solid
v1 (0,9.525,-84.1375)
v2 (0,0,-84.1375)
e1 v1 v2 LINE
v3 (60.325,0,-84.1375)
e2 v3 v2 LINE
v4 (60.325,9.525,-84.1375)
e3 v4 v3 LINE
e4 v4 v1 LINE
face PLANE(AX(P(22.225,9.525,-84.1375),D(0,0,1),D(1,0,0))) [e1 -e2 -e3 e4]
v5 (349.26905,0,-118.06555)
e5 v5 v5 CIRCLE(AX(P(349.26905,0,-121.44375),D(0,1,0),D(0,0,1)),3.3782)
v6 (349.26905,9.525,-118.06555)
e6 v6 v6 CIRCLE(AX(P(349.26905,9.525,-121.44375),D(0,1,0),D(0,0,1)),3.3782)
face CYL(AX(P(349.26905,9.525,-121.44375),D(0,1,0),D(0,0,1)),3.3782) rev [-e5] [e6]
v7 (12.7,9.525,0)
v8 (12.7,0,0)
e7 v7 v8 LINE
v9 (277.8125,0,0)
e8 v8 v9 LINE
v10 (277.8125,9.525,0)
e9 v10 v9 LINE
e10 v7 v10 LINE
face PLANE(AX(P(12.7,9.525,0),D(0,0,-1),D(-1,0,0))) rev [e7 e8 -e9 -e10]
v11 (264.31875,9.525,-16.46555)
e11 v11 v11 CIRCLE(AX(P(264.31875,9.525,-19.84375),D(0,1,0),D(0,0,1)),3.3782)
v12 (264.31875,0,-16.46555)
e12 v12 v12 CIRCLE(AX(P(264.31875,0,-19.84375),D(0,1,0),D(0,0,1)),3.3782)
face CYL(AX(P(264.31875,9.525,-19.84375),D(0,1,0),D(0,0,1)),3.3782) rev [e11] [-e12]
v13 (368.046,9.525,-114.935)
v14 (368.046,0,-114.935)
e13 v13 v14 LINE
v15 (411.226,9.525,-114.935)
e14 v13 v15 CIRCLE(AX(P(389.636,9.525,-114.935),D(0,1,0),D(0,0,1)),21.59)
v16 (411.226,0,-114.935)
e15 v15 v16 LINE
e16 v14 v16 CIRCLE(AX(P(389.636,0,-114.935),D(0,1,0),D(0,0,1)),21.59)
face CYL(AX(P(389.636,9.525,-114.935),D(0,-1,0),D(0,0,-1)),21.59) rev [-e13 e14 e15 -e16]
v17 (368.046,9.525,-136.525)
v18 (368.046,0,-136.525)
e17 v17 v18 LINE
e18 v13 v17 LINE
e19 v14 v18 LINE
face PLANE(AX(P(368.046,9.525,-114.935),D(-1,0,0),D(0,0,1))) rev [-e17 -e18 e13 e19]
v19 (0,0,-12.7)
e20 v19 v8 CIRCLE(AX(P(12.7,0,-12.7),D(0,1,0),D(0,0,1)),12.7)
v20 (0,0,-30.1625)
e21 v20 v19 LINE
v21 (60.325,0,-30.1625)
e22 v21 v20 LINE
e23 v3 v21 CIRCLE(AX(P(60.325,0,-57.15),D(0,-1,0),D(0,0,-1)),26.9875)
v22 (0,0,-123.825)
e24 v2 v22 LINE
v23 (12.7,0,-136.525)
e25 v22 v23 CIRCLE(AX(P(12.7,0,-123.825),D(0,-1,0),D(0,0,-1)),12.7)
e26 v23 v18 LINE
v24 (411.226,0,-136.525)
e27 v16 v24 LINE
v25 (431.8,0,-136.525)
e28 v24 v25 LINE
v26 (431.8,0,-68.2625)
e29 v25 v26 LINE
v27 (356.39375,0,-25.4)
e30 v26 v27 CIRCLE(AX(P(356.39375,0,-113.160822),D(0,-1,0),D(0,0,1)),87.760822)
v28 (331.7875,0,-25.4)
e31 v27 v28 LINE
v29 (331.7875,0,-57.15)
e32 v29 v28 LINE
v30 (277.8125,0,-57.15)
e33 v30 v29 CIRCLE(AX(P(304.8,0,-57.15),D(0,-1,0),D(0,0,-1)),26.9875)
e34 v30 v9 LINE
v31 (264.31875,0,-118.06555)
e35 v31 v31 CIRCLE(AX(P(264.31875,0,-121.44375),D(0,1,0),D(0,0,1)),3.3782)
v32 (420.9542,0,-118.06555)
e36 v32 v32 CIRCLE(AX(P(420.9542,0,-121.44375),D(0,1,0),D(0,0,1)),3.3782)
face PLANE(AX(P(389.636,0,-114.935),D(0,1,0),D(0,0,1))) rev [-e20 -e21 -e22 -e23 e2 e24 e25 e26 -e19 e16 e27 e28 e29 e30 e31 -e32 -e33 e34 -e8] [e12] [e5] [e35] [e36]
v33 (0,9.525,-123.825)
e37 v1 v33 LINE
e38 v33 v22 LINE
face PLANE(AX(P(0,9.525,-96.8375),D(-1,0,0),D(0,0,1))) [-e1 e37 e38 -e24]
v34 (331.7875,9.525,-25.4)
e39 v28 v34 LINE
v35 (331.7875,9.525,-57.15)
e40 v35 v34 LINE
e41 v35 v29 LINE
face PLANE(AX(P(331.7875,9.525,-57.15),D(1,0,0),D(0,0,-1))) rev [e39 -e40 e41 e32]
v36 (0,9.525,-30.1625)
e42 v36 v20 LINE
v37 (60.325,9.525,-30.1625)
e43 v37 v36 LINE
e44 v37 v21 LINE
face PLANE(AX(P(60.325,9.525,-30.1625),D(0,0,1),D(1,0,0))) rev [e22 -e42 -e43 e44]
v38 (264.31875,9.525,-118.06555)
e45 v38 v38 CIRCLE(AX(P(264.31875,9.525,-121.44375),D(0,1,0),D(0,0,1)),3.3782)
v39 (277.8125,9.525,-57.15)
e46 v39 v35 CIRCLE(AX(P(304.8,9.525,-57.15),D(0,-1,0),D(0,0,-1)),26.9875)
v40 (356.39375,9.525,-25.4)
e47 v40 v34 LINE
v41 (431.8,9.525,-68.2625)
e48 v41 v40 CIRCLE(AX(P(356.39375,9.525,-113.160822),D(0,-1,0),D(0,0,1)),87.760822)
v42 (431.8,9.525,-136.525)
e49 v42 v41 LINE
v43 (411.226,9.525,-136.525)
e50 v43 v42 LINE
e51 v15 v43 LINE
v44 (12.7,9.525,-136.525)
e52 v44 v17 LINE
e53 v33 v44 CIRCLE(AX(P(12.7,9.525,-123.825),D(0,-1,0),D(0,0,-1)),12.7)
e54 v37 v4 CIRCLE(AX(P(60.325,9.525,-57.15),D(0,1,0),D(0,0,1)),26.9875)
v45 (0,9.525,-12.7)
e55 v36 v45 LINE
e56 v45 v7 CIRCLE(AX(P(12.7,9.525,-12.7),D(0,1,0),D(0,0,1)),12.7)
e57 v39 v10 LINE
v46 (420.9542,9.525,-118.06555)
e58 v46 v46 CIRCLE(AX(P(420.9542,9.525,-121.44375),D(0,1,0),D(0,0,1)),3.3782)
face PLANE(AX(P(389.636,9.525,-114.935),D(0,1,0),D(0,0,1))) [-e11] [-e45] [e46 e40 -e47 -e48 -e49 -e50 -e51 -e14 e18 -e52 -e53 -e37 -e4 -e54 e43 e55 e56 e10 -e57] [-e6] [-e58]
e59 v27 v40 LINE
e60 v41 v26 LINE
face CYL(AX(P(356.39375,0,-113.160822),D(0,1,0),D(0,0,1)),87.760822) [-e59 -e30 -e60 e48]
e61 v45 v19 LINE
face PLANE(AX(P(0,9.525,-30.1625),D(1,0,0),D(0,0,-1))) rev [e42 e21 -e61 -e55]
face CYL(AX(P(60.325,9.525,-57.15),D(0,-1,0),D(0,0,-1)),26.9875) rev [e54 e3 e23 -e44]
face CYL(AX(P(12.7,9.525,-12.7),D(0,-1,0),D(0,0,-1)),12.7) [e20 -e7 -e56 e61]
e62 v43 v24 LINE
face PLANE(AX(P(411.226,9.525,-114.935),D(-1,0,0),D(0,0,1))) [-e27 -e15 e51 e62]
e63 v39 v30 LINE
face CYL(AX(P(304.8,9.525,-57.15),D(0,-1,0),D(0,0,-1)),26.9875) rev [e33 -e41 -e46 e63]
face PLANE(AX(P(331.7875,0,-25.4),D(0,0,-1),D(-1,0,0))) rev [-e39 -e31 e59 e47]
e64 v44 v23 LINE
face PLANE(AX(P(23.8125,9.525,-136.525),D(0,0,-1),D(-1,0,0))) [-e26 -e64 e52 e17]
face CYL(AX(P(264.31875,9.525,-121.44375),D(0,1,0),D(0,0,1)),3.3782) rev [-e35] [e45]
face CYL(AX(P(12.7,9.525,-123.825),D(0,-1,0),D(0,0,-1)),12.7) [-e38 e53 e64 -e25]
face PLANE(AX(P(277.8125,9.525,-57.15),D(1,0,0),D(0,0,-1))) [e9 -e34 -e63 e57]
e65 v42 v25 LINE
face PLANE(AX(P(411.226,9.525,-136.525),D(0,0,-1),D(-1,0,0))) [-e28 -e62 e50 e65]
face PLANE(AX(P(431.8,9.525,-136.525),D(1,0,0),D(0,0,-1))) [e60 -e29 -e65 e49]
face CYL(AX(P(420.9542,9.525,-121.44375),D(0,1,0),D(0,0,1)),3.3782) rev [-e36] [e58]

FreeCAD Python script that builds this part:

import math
import FreeCAD as App
import Part
import Sketcher
from FreeCAD import Vector
Q = App.Units.Quantity

doc = App.newDocument("Part")
params = doc.addObject("Spreadsheet::Sheet", "Params")
for row, (alias, value) in enumerate([
    ("sketch1_radius", "0.5 in"),
    ("sketch1_width", "1 in"),
    ("sketch1_radius2", "0.85 in"),
    ("sketch1_radius3", "1.0625 in"),
    ("sketch1_width2", "0.81 in"),
    ("pad1_length", "0.375 in"),
    ("sketch2_width", "1 in"),
    ("sketch2_width2", "0.96875 in"),
    ("sketch3_diameter", "0.266 in"),
    ("hole_diameter", "0.266 in"),
], start=1):
    params.set(f"A{row}", alias)
    params.set(f"B{row}", "=" + value)
    params.setAlias(f"B{row}", alias)

body = doc.addObject("PartDesign::Body", "Body")

sketch1 = body.newObject("Sketcher::SketchObject", "Sketch")
sketch1.AttachmentSupport = (doc.getObject("XZ_Plane"), [""])
sketch1.MapMode = "FlatFace"
sketch1.addGeometry([
    Part.LineSegment(Vector(277.8125, 0, 0), Vector(277.8125, -57.15, 0)),
    Part.ArcOfCircle(Part.Circle(Vector(304.8, -57.15, 0), Vector(0, 0, 1), 26.9875), math.radians(180), math.radians(360)),
    Part.LineSegment(Vector(331.7875, -57.15, 0), Vector(331.7875, 0, 0)),
    Part.LineSegment(Vector(331.7875, 0, 0), Vector(357.1875, 0, 0)),
    Part.ArcOfCircle(Part.Circle(Vector(357.1875, -74.907849, 0), Vector(0, 0, 1), 74.907849), math.radians(5.089609), math.radians(90)),
    Part.LineSegment(Vector(431.8, -68.2625, 0), Vector(431.8, -136.525, 0)),
    Part.LineSegment(Vector(431.8, -136.525, 0), Vector(411.226, -136.525, 0)),
    Part.LineSegment(Vector(411.226, -136.525, 0), Vector(411.226, -114.935, 0)),
    Part.ArcOfCircle(Part.Circle(Vector(389.636, -114.935, 0), Vector(0, 0, 1), 21.59), math.radians(0), math.radians(180)),
    Part.LineSegment(Vector(368.046, -114.935, 0), Vector(368.046, -136.525, 0)),
    Part.LineSegment(Vector(368.046, -136.525, 0), Vector(12.7, -136.525, 0)),
    Part.ArcOfCircle(Part.Circle(Vector(12.7, -123.825, 0), Vector(0, 0, 1), 12.7), math.radians(180), math.radians(270)),
    Part.LineSegment(Vector(0, -123.825, 0), Vector(0, -84.1375, 0)),
    Part.LineSegment(Vector(0, -84.1375, 0), Vector(60.325, -84.1375, 0)),
    Part.ArcOfCircle(Part.Circle(Vector(60.325, -57.15, 0), Vector(0, 0, 1), 26.9875), math.radians(-90), math.radians(0)),
    Part.ArcOfCircle(Part.Circle(Vector(60.325, -57.15, 0), Vector(0, 0, 1), 26.9875), math.radians(0), math.radians(90)),
    Part.LineSegment(Vector(60.325, -30.1625, 0), Vector(0, -30.1625, 0)),
    Part.LineSegment(Vector(0, -30.1625, 0), Vector(0, -12.7, 0)),
    Part.ArcOfCircle(Part.Circle(Vector(12.7, -12.7, 0), Vector(0, 0, 1), 12.7), math.radians(90), math.radians(180)),
    Part.LineSegment(Vector(12.7, 0, 0), Vector(277.8125, 0, 0)),
], False)
sketch1.addConstraint([
    Sketcher.Constraint("Tangent", 0, 2, 1, 1),
    Sketcher.Constraint("Tangent", 1, 2, 2, 1),
    Sketcher.Constraint("Coincident", 2, 2, 3, 1),
    Sketcher.Constraint("Tangent", 3, 2, 4, 2),
    Sketcher.Constraint("Coincident", 4, 1, 5, 1),
    Sketcher.Constraint("Coincident", 5, 2, 6, 1),
    Sketcher.Constraint("Coincident", 6, 2, 7, 1),
    Sketcher.Constraint("Tangent", 7, 2, 8, 1),
    Sketcher.Constraint("Tangent", 8, 2, 9, 1),
    Sketcher.Constraint("Coincident", 9, 2, 10, 1),
    Sketcher.Constraint("Tangent", 10, 2, 11, 2),
    Sketcher.Constraint("Tangent", 11, 1, 12, 1),
    Sketcher.Constraint("Coincident", 12, 2, 13, 1),
    Sketcher.Constraint("Tangent", 13, 2, 14, 1),
    Sketcher.Constraint("Tangent", 14, 2, 15, 1),
    Sketcher.Constraint("Tangent", 15, 2, 16, 1),
    Sketcher.Constraint("Coincident", 16, 2, 17, 1),
    Sketcher.Constraint("Tangent", 17, 2, 18, 2),
    Sketcher.Constraint("Tangent", 18, 1, 19, 1),
    Sketcher.Constraint("Coincident", 19, 2, 0, 1),
    Sketcher.Constraint("Vertical", 0),
    Sketcher.Constraint("Vertical", 2),
    Sketcher.Constraint("Horizontal", 3),
    Sketcher.Constraint("Vertical", 5),
    Sketcher.Constraint("Horizontal", 6),
    Sketcher.Constraint("Vertical", 7),
    Sketcher.Constraint("Vertical", 9),
    Sketcher.Constraint("Horizontal", 10),
    Sketcher.Constraint("Vertical", 12),
    Sketcher.Constraint("Horizontal", 13),
    Sketcher.Constraint("Horizontal", 16),
    Sketcher.Constraint("Vertical", 17),
    Sketcher.Constraint("Horizontal", 19),
    Sketcher.Constraint("Equal", 1, 14),
    Sketcher.Constraint("Equal", 14, 15),
    Sketcher.Constraint("Equal", 11, 18),
    Sketcher.Constraint("PointOnObject", 2, 2, -1),
    Sketcher.Constraint("PointOnObject", 11, 1, -2),
    Sketcher.Constraint("PointOnObject", 16, 2, -2),
    Sketcher.Constraint("PointOnObject", 18, 1, -1),
    Sketcher.Constraint("Horizontal", 1, 3, 14, 3),
    Sketcher.Constraint("Horizontal", 6, 2, 9, 2),
    Sketcher.Constraint("Horizontal", 1, 2, 14, 2),
    Sketcher.Constraint("Radius", 11, Q("0.5 in")),
    Sketcher.Constraint("DistanceX", 3, 1, 3, 2, Q("1 in")),
    Sketcher.Constraint("Radius", 8, Q("0.85 in")),
    Sketcher.Constraint("DistanceX", -1, 1, 1, 3, Q("12 in")),
    Sketcher.Constraint("DistanceX", -1, 1, 4, 1, Q("17 in")),
    Sketcher.Constraint("Radius", 1, Q("1.0625 in")),
    Sketcher.Constraint("DistanceX", 6, 2, 6, 1, Q("0.81 in")),
    Sketcher.Constraint("DistanceY", 0, 2, 0, 1, Q("2.25 in")),
    Sketcher.Constraint("DistanceY", 7, 1, 7, 2, Q("0.85 in")),
    Sketcher.Constraint("DistanceX", 13, 1, 13, 2, Q("2.375 in")),
    Sketcher.Constraint("DistanceY", 5, 2, 5, 1, Q("2.6875 in")),
    Sketcher.Constraint("DistanceY", 12, 1, 12, 2, Q("1.5625 in")),
])
sketch1.setExpression("Constraints[43]", "Params.sketch1_radius")
sketch1.setExpression("Constraints[44]", "Params.sketch1_width")
sketch1.setExpression("Constraints[45]", "Params.sketch1_radius2")
sketch1.setExpression("Constraints[48]", "Params.sketch1_radius3")
sketch1.setExpression("Constraints[49]", "Params.sketch1_width2")
pad1 = body.newObject("PartDesign::Pad", "Pad")
pad1.Profile = sketch1
pad1.setExpression("Length", "Params.pad1_length")
pad1.Reversed = True

sketch2 = body.newObject("Sketcher::SketchObject", "Sketch001")
sketch2.AttachmentSupport = (doc.getObject("XZ_Plane"), [""])
sketch2.MapMode = "FlatFace"
sketch2.AttachmentOffset = App.Placement(Vector(0, 0, -0.375 * 25.4), App.Rotation())
sketch2.addGeometry([
    Part.LineSegment(Vector(331.7875, -25.4, 0), Vector(331.7875, 0, 0)),
    Part.LineSegment(Vector(331.7875, 0, 0), Vector(357.1875, 0, 0)),
    Part.ArcOfCircle(Part.Circle(Vector(357.1875, -74.907849, 0), Vector(0, 0, 1), 74.907849), math.radians(5.089609), math.radians(90)),
    Part.ArcOfCircle(Part.Circle(Vector(356.39375, -113.160822, 0), Vector(0, 0, 1), 87.760822), math.radians(30.770377), math.radians(90)),
    Part.LineSegment(Vector(356.39375, -25.4, 0), Vector(331.7875, -25.4, 0)),
], False)
sketch2.addConstraint([
    Sketcher.Constraint("Coincident", 0, 2, 1, 1),
    Sketcher.Constraint("Tangent", 1, 2, 2, 2),
    Sketcher.Constraint("Coincident", 2, 1, 3, 1),
    Sketcher.Constraint("Tangent", 3, 2, 4, 1),
    Sketcher.Constraint("Coincident", 4, 2, 0, 1),
    Sketcher.Constraint("Vertical", 0),
    Sketcher.Constraint("Horizontal", 1),
    Sketcher.Constraint("Horizontal", 4),
    Sketcher.Constraint("PointOnObject", 0, 2, -1),
    Sketcher.Constraint("Equal", 1, 0),
    Sketcher.Constraint("DistanceX", 1, 1, 1, 2, Q("1 in")),
    Sketcher.Constraint("DistanceX", -1, 1, 2, 1, Q("17 in")),
    Sketcher.Constraint("DistanceX", 4, 2, 4, 1, Q("0.96875 in")),
    Sketcher.Constraint("DistanceX", -1, 1, 2, 3, Q("14.0625 in")),
    Sketcher.Constraint("DistanceY", 2, 1, -1, 1, Q("2.6875 in")),
])
sketch2.setExpression("Constraints[10]", "Params.sketch2_width")
sketch2.setExpression("Constraints[12]", "Params.sketch2_width2")
pocket1 = body.newObject("PartDesign::Pocket", "Pocket")
pocket1.Profile = sketch2
pocket1.Type = "ThroughAll"
pocket1.Reversed = True

sketch3 = body.newObject("Sketcher::SketchObject", "Sketch002")
sketch3.AttachmentSupport = (doc.getObject("XZ_Plane"), [""])
sketch3.MapMode = "FlatFace"
sketch3.AttachmentOffset = App.Placement(Vector(0, 0, -0.375 * 25.4), App.Rotation())
sketch3.addGeometry([
    Part.Circle(Vector(420.9542, -121.44375, 0), Vector(0, 0, 1), 3.3782),
    Part.Circle(Vector(349.26905, -121.44375, 0), Vector(0, 0, 1), 3.3782),
    Part.Circle(Vector(264.31875, -121.44375, 0), Vector(0, 0, 1), 3.3782),
    Part.Circle(Vector(264.31875, -19.84375, 0), Vector(0, 0, 1), 3.3782),
], False)
sketch3.addConstraint([
    Sketcher.Constraint("Equal", 0, 1),
    Sketcher.Constraint("Equal", 1, 2),
    Sketcher.Constraint("Equal", 2, 3),
    Sketcher.Constraint("Horizontal", 0, 3, 1, 3),
    Sketcher.Constraint("Horizontal", 1, 3, 2, 3),
    Sketcher.Constraint("Vertical", 2, 3, 3, 3),
    Sketcher.Constraint("Diameter", 0, Q("0.266 in")),
    Sketcher.Constraint("DistanceY", 2, 3, 3, 3, Q("4 in")),
    Sketcher.Constraint("DistanceX", -1, 1, 0, 3, Q("16.573 in")),
    Sketcher.Constraint("DistanceY", 0, 3, -1, 1, Q("4.78125 in")),
    Sketcher.Constraint("DistanceX", -1, 1, 2, 3, Q("10.40625 in")),
    Sketcher.Constraint("DistanceX", 2, 3, 1, 3, Q("3.3445 in")),
])
sketch3.setExpression("Constraints[6]", "Params.sketch3_diameter")
doc.recompute()
hole = body.newObject("PartDesign::Hole", "Hole")
hole.Profile = sketch3
hole.ThreadType = "None"
hole.setExpression("Diameter", "Params.hole_diameter")
hole.DepthType = "ThroughAll"
hole.Reversed = True

doc.recompute()
